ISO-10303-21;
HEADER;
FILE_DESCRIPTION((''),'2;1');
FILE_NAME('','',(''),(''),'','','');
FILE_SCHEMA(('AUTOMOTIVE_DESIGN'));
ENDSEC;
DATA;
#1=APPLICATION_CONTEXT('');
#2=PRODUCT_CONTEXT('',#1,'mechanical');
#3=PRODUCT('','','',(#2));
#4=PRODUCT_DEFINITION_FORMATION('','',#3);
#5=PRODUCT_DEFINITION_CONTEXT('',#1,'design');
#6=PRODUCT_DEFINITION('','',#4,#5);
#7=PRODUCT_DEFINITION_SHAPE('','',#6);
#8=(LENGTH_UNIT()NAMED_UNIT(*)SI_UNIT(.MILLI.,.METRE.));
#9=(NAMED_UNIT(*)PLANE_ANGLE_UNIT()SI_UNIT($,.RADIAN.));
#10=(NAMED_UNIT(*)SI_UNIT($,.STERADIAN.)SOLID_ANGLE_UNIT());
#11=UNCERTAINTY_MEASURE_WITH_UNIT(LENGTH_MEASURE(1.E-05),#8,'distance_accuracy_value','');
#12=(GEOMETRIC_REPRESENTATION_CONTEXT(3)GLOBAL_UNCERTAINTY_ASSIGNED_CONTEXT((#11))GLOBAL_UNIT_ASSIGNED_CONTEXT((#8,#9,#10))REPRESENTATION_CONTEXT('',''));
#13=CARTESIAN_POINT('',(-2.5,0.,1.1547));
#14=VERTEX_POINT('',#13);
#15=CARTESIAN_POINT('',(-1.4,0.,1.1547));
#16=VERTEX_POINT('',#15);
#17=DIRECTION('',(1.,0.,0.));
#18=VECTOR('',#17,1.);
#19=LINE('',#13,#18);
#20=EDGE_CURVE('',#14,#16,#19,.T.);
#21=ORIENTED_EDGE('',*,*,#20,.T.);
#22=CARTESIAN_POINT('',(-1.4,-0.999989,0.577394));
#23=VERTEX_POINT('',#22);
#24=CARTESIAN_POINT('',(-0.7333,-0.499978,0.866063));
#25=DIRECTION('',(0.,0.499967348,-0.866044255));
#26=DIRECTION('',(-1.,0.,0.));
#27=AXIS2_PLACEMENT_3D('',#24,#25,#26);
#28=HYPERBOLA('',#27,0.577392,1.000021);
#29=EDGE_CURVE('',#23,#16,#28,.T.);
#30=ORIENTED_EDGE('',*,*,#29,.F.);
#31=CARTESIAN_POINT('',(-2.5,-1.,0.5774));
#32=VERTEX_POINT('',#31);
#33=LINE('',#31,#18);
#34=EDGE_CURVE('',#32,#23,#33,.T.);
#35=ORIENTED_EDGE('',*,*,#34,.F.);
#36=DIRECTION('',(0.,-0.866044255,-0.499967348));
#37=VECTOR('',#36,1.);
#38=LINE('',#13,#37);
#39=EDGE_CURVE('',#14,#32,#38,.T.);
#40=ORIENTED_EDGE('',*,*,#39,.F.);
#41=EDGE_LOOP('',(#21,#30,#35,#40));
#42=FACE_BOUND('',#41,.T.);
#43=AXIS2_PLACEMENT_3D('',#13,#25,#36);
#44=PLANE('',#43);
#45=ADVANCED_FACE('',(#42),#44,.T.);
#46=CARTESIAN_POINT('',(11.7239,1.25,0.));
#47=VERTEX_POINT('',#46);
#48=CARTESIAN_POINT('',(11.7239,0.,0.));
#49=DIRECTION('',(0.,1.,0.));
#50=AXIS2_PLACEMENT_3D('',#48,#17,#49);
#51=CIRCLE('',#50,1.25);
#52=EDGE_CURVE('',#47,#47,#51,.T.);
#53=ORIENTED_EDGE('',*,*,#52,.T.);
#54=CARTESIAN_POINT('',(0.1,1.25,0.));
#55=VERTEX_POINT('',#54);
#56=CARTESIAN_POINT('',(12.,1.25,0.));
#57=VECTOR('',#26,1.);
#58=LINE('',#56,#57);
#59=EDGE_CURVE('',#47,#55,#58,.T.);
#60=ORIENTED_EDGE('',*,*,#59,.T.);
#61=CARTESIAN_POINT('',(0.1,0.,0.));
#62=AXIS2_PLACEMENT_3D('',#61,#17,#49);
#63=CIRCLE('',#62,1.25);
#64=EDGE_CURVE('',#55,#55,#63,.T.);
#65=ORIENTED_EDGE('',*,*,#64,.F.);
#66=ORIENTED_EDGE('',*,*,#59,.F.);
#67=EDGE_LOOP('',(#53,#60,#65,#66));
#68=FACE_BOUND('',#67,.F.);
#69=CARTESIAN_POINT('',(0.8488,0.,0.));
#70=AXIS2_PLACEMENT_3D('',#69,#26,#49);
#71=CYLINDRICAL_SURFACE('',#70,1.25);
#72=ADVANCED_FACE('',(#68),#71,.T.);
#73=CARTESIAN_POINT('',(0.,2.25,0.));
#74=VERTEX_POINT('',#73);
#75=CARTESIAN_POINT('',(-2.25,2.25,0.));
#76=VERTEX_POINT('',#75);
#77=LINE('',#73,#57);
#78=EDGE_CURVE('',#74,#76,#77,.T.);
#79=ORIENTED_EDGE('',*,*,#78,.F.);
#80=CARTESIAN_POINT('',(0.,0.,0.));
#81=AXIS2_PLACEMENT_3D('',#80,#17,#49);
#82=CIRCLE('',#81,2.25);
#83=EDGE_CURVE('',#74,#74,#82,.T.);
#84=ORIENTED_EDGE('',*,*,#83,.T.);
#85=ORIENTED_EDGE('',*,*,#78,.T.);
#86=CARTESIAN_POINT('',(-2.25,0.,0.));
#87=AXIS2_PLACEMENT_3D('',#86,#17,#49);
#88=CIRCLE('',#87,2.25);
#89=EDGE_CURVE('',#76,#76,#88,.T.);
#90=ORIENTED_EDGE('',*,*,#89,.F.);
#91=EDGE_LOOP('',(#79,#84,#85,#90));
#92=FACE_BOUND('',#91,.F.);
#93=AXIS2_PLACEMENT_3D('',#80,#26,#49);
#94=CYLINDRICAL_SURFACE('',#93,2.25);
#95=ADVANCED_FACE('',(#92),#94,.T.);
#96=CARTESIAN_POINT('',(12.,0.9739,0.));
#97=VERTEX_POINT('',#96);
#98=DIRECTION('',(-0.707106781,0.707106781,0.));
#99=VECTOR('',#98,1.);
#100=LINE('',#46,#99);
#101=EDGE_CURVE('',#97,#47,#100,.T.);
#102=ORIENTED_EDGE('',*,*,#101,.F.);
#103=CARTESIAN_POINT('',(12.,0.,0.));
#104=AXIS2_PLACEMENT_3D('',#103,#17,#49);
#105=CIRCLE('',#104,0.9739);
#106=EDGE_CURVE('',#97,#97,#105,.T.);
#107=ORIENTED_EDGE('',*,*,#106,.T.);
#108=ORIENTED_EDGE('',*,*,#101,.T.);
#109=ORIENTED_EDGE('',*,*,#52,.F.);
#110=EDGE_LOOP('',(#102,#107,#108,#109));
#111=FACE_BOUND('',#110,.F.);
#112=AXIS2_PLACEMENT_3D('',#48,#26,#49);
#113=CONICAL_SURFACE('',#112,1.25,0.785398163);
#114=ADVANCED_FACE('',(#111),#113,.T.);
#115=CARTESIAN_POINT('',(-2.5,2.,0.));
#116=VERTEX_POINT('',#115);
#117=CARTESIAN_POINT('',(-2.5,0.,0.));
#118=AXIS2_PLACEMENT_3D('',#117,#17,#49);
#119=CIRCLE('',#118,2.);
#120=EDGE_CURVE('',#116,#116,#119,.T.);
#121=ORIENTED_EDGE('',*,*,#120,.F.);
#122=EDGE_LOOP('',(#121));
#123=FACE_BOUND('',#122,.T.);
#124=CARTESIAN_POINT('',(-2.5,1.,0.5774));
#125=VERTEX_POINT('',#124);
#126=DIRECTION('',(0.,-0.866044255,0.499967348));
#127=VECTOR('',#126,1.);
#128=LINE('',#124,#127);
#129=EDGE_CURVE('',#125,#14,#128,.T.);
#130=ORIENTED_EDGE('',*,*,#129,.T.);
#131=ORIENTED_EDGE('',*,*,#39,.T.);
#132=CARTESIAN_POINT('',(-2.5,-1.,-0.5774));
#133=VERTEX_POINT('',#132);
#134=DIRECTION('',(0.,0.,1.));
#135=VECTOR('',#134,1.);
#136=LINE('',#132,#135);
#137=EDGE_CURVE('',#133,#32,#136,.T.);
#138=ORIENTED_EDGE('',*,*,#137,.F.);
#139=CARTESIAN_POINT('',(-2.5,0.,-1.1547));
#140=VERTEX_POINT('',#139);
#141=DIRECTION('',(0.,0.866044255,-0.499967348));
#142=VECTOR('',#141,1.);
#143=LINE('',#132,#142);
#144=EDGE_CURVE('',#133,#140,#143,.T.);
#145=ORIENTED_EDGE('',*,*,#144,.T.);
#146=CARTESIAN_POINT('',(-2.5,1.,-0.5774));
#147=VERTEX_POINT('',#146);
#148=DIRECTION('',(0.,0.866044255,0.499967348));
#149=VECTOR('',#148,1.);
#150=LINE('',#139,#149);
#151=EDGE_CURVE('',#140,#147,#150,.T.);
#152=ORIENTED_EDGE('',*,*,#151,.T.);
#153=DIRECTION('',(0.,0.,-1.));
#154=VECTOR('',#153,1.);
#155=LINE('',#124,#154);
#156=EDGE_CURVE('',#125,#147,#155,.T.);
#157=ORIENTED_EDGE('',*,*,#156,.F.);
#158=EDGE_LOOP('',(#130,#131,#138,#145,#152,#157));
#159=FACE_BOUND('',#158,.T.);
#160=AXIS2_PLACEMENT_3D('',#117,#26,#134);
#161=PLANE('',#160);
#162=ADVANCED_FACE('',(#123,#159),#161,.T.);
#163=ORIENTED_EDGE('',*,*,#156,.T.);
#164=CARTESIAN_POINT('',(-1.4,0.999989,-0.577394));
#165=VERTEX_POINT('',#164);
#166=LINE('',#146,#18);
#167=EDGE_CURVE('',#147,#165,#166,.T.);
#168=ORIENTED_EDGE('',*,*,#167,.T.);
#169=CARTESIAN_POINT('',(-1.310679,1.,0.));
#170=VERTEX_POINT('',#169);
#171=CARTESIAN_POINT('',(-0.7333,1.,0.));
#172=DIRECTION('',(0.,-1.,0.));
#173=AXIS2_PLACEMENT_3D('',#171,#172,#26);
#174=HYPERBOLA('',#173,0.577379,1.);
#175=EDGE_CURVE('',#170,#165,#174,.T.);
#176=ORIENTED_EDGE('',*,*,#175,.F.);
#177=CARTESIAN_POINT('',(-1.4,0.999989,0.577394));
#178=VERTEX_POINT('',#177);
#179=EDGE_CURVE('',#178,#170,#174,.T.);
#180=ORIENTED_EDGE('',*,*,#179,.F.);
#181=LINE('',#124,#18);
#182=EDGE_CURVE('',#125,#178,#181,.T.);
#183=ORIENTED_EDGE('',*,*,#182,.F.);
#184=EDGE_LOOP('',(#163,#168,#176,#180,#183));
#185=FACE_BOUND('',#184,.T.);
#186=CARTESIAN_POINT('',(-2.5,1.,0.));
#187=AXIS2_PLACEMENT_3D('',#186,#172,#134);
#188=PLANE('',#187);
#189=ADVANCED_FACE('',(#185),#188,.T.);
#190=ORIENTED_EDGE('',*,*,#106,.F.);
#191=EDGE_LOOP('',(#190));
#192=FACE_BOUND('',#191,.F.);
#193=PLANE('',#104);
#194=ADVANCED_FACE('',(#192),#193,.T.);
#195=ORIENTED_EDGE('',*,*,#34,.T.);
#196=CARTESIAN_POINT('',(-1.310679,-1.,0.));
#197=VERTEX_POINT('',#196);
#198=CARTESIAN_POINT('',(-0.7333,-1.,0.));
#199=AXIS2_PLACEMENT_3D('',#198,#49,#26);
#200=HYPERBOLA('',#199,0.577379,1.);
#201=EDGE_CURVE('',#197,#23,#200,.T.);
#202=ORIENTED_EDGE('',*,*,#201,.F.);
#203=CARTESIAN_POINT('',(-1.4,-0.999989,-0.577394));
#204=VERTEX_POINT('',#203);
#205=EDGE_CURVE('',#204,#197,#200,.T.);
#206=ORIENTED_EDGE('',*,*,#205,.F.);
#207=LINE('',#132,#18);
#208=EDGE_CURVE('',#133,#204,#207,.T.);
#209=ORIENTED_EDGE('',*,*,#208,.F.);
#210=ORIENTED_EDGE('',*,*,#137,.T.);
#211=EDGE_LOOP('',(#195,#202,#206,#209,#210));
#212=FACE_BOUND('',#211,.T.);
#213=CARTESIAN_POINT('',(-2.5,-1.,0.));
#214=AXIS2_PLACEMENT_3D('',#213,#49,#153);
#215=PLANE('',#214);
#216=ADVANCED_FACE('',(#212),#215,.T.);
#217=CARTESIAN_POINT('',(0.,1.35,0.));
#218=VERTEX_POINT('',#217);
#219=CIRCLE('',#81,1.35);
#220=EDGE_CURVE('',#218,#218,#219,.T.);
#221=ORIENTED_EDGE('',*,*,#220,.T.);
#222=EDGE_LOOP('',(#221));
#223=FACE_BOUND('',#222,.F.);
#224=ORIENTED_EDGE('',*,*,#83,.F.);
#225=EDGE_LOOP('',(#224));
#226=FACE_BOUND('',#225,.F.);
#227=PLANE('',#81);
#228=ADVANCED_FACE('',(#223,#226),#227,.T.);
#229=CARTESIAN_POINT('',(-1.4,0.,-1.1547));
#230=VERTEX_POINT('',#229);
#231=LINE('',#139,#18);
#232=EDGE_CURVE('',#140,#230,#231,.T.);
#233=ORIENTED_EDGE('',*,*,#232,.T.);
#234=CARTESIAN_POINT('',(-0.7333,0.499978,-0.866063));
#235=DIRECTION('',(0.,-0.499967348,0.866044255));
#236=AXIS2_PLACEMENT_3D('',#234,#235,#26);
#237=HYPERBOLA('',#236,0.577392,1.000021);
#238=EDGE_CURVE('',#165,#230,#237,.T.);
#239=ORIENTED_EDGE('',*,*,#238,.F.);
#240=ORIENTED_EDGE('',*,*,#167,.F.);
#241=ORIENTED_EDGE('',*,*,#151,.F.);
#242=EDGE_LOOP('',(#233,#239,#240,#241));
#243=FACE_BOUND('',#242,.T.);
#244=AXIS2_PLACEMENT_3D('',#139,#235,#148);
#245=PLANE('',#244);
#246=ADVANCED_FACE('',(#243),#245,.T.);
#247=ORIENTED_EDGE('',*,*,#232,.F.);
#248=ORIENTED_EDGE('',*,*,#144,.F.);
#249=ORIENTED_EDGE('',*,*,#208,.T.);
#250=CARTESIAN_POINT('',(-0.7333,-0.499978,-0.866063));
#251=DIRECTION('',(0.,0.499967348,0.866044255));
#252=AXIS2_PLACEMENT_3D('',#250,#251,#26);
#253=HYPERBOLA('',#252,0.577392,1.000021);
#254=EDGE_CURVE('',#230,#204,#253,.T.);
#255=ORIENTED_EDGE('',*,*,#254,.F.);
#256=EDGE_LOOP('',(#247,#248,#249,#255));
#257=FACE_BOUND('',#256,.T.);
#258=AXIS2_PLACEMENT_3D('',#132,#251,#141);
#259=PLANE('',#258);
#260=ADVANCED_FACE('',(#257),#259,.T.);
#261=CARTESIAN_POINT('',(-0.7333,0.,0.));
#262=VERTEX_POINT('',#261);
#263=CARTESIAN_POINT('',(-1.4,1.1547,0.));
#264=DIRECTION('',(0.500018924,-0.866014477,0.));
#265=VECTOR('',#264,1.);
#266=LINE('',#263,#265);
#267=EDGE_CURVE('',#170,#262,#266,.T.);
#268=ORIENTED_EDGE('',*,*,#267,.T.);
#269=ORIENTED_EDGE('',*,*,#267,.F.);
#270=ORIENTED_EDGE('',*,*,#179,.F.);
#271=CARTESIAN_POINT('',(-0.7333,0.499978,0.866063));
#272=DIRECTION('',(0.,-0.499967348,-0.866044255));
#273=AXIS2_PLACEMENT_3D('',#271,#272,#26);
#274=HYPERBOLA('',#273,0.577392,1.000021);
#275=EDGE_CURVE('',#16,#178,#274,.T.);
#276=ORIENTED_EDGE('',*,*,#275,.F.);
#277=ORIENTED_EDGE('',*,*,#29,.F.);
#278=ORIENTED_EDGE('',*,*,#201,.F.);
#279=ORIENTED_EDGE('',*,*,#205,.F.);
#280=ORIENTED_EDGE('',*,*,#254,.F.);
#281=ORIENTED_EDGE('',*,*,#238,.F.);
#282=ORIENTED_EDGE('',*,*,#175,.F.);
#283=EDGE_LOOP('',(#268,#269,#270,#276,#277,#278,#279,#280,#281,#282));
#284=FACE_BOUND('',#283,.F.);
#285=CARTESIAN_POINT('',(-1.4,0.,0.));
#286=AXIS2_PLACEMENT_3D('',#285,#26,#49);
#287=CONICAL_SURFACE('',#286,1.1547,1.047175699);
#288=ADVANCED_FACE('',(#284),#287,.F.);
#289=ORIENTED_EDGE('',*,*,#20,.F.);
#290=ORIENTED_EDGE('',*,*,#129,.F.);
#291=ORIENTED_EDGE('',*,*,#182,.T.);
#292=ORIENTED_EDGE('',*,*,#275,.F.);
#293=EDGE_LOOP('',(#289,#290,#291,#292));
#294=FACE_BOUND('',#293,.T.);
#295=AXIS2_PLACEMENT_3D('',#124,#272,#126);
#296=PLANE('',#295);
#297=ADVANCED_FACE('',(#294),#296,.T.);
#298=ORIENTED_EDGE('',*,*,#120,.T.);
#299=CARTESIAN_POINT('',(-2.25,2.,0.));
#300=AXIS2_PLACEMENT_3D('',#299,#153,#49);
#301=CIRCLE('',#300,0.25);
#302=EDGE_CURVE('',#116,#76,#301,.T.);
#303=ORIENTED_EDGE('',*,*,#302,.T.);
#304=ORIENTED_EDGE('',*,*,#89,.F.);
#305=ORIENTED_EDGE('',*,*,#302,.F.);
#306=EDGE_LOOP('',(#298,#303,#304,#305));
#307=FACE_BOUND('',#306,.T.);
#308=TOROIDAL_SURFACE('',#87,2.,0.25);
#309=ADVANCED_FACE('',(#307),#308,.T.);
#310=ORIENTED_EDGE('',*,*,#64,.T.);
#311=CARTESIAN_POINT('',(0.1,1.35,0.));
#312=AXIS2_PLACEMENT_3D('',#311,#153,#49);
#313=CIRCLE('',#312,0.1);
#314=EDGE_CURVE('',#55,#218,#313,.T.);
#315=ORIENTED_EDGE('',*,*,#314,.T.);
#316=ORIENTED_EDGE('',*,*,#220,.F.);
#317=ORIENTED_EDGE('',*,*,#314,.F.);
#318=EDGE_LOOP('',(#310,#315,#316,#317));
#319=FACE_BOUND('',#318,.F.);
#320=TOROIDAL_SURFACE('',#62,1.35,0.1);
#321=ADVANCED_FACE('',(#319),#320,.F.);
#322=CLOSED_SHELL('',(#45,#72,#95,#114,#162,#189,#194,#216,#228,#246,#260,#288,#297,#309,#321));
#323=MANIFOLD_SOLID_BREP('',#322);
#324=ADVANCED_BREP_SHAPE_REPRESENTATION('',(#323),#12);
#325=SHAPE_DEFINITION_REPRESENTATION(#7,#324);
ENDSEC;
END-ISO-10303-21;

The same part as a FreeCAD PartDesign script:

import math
import FreeCAD as App
import Part
import Sketcher
Q = App.Units.Quantity


def edges_at(feature, points):
    """Names of the edges that pass closest to the given points."""
    edges = feature.Shape.Edges
    near = lambda p: min(range(len(edges)), key=lambda i: edges[i].distToShape(Part.Vertex(*p))[0])
    return sorted({f"Edge{near(p) + 1}" for p in points})


def add_polygon(sketch, points):
    """Adds a closed chain of lines whose ends are joined by coincident constraints."""
    first, n = sketch.GeometryCount, len(points)
    for a, b in zip(points, points[1:] + points[:1]):
        sketch.addGeometry(Part.LineSegment(App.Vector(*a, 0), App.Vector(*b, 0)), False)
    for i in range(n):
        sketch.addConstraint(Sketcher.Constraint("Coincident", first + i, 2, first + (i + 1) % n, 1))

doc = App.newDocument("Part")
params = doc.addObject("Spreadsheet::Sheet", "Params")
for row, (alias, value) in enumerate([
    ("sketch1_width", "12 mm"),
    ("sketch1_width2", "2.5 mm"),
    ("sketch1_width3", "1.1 mm"),
    ("sketch1_height", "1 mm"),
    ("sketch1_height2", "1.25 mm"),
    ("revolution_angle", "360 deg"),
    ("fillet_radius", "0.25 mm"),
    ("chamfer_size", "0.2761 mm"),
    ("chamfer_size2", "0.2761 mm"),
    ("fillet2_radius", "0.1 mm"),
], start=1):
    params.set(f"A{row}", alias)
    params.set(f"B{row}", "=" + value)
    params.setAlias(f"B{row}", alias)

body = doc.addObject("PartDesign::Body", "Body")

# Sketch on XY plane
sketch1 = body.newObject("Sketcher::SketchObject", "Sketch")
sketch1.AttachmentSupport = (doc.getObject("XY_Plane"), [""])
sketch1.MapMode = "FlatFace"
add_polygon(sketch1, [(-1.4, 1.2), (-0.7, 0), (12, 0), (12, 1.2), (0, 1.2), (0, 2.2), (-2.5, 2.2), (-2.5, 1.2)])  # lines 0-7
sketch1.addConstraint(Sketcher.Constraint("Horizontal", 1))
sketch1.addConstraint(Sketcher.Constraint("Vertical", 2))
sketch1.addConstraint(Sketcher.Constraint("Horizontal", 3))
sketch1.addConstraint(Sketcher.Constraint("Vertical", 4))
sketch1.addConstraint(Sketcher.Constraint("Horizontal", 5))
sketch1.addConstraint(Sketcher.Constraint("Vertical", 6))
sketch1.addConstraint(Sketcher.Constraint("Horizontal", 7))
sketch1.addConstraint(Sketcher.Constraint("PointOnObject", 0, 2, -1))
sketch1.addConstraint(Sketcher.Constraint("PointOnObject", 3, 2, -2))
sketch1.addConstraint(Sketcher.Constraint("DistanceX", 3, 2, 3, 1, Q("12 mm")))
sketch1.addConstraint(Sketcher.Constraint("DistanceX", 5, 2, 5, 1, Q("2.5 mm")))
sketch1.addConstraint(Sketcher.Constraint("DistanceX", 7, 1, 7, 2, Q("1.1 mm")))
sketch1.addConstraint(Sketcher.Constraint("DistanceY", 4, 1, 4, 2, Q("1 mm")))
sketch1.addConstraint(Sketcher.Constraint("DistanceY", 2, 1, 2, 2, Q("1.25 mm")))
sketch1.addConstraint(Sketcher.Constraint("DistanceX", 1, 1, 1, 2, Q("12.7333 mm")))
sketch1.addConstraint(Sketcher.Constraint("DistanceY", 6, 2, 6, 1, Q("1.0953 mm")))
sketch1.setExpression("Constraints[17]", "Params.sketch1_width")
sketch1.setExpression("Constraints[18]", "Params.sketch1_width2")
sketch1.setExpression("Constraints[19]", "Params.sketch1_width3")
sketch1.setExpression("Constraints[20]", "Params.sketch1_height")
sketch1.setExpression("Constraints[21]", "Params.sketch1_height2")
revolution = body.newObject("PartDesign::Revolution", "Revolution")
revolution.Profile = sketch1
revolution.ReferenceAxis = (sketch1, ["H_Axis"])
revolution.setExpression("Angle", "Params.revolution_angle")

# Sketch on YZ plane
sketch2 = body.newObject("Sketcher::SketchObject", "Sketch001")
sketch2.AttachmentSupport = (doc.getObject("YZ_Plane"), [""])
sketch2.MapMode = "FlatFace"
sketch2.AttachmentOffset = App.Placement(App.Vector(0, 0, -2.5), App.Rotation())
sketch2.addGeometry(Part.LineSegment(App.Vector(1, 0.6, 0), App.Vector(0, 1.2, 0)), False)
sketch2.addGeometry(Part.ArcOfCircle(Part.Circle(App.Vector(0, 0, 0), App.Vector(0, 0, 1), 1.2), math.radians(30), math.radians(90)), False)
sketch2.addGeometry(Part.ArcOfCircle(Part.Circle(App.Vector(0, 0, 0), App.Vector(0, 0, 1), 1.2), math.radians(90), math.radians(150)), False)
sketch2.addGeometry(Part.LineSegment(App.Vector(0, 1.2, 0), App.Vector(-1, 0.6, 0)), False)
sketch2.addGeometry(Part.ArcOfCircle(Part.Circle(App.Vector(0, 0, 0), App.Vector(0, 0, 1), 1.2), math.radians(-30), math.radians(30)), False)
sketch2.addGeometry(Part.LineSegment(App.Vector(1, 0.6, 0), App.Vector(1, -0.6, 0)), False)
sketch2.addGeometry(Part.LineSegment(App.Vector(-1, 0.6, 0), App.Vector(-1, -0.6, 0)), False)
sketch2.addGeometry(Part.ArcOfCircle(Part.Circle(App.Vector(0, 0, 0), App.Vector(0, 0, 1), 1.2), math.radians(150), math.radians(210)), False)
sketch2.addGeometry(Part.LineSegment(App.Vector(-1, -0.6, 0), App.Vector(0, -1.2, 0)), False)
sketch2.addGeometry(Part.ArcOfCircle(Part.Circle(App.Vector(0, 0, 0), App.Vector(0, 0, 1), 1.2), math.radians(-150), math.radians(-90)), False)
sketch2.addGeometry(Part.ArcOfCircle(Part.Circle(App.Vector(0, 0, 0), App.Vector(0, 0, 1), 1.2), math.radians(-90), math.radians(-30)), False)
sketch2.addGeometry(Part.LineSegment(App.Vector(0, -1.2, 0), App.Vector(1, -0.6, 0)), False)
sketch2.addConstraint(Sketcher.Constraint("Coincident", 0, 1, 1, 1))
sketch2.addConstraint(Sketcher.Constraint("Coincident", 1, 2, 0, 2))
sketch2.addConstraint(Sketcher.Constraint("Coincident", 2, 1, 3, 1))
sketch2.addConstraint(Sketcher.Constraint("Coincident", 3, 2, 2, 2))
sketch2.addConstraint(Sketcher.Constraint("Coincident", 4, 1, 5, 2))
sketch2.addConstraint(Sketcher.Constraint("Coincident", 5, 1, 4, 2))
sketch2.addConstraint(Sketcher.Constraint("Coincident", 6, 1, 7, 1))
sketch2.addConstraint(Sketcher.Constraint("Coincident", 7, 2, 6, 2))
sketch2.addConstraint(Sketcher.Constraint("Coincident", 8, 1, 9, 1))
sketch2.addConstraint(Sketcher.Constraint("Coincident", 9, 2, 8, 2))
sketch2.addConstraint(Sketcher.Constraint("Coincident", 10, 1, 11, 1))
sketch2.addConstraint(Sketcher.Constraint("Coincident", 11, 2, 10, 2))
sketch2.addConstraint(Sketcher.Constraint("Vertical", 5))
sketch2.addConstraint(Sketcher.Constraint("Vertical", 6))
sketch2.addConstraint(Sketcher.Constraint("Coincident", 1, 3, -1, 1))
sketch2.addConstraint(Sketcher.Constraint("Coincident", 2, 3, -1, 1))
sketch2.addConstraint(Sketcher.Constraint("Coincident", 4, 3, -1, 1))
sketch2.addConstraint(Sketcher.Constraint("Coincident", 7, 3, -1, 1))
sketch2.addConstraint(Sketcher.Constraint("Coincident", 9, 3, -1, 1))
sketch2.addConstraint(Sketcher.Constraint("Coincident", 10, 3, -1, 1))
sketch2.addConstraint(Sketcher.Constraint("Coincident", 2, 1, 1, 2))
sketch2.addConstraint(Sketcher.Constraint("Coincident", 5, 1, 0, 1))
sketch2.addConstraint(Sketcher.Constraint("Coincident", 6, 1, 3, 2))
sketch2.addConstraint(Sketcher.Constraint("Coincident", 8, 1, 7, 2))
sketch2.addConstraint(Sketcher.Constraint("Coincident", 10, 1, 9, 2))
sketch2.addConstraint(Sketcher.Constraint("PointOnObject", 1, 2, -2))
sketch2.addConstraint(Sketcher.Constraint("PointOnObject", 9, 2, -2))
sketch2.addConstraint(Sketcher.Constraint("Parallel", 0, 8))
sketch2.addConstraint(Sketcher.Constraint("Parallel", 3, 11))
sketch2.addConstraint(Sketcher.Constraint("DistanceX", -1, 1, 0, 1, Q("1 mm")))
sketch2.addConstraint(Sketcher.Constraint("Radius", 1, Q("1.1547 mm")))
pad1 = body.newObject("PartDesign::Pad", "Pad")
pad1.Profile = sketch2
pad1.Type = "UpToFirst"
doc.recompute()

fillet = body.newObject("PartDesign::Fillet", "Fillet")
fillet.Base = (pad1, edges_at(pad1, [(-2.5, -2.25, 0)]))
fillet.setExpression("Radius", "Params.fillet_radius")
doc.recompute()

chamfer = body.newObject("PartDesign::Chamfer", "Chamfer")
chamfer.Base = (fillet, edges_at(fillet, [(12, -1.25, 0)]))
chamfer.ChamferType = "Two distances"
chamfer.setExpression("Size", "Params.chamfer_size")
chamfer.setExpression("Size2", "Params.chamfer_size2")
doc.recompute()

fillet2 = body.newObject("PartDesign::Fillet", "Fillet001")
fillet2.Base = (chamfer, edges_at(chamfer, [(0, -1.25, 0)]))
fillet2.setExpression("Radius", "Params.fillet2_radius")

doc.recompute()
